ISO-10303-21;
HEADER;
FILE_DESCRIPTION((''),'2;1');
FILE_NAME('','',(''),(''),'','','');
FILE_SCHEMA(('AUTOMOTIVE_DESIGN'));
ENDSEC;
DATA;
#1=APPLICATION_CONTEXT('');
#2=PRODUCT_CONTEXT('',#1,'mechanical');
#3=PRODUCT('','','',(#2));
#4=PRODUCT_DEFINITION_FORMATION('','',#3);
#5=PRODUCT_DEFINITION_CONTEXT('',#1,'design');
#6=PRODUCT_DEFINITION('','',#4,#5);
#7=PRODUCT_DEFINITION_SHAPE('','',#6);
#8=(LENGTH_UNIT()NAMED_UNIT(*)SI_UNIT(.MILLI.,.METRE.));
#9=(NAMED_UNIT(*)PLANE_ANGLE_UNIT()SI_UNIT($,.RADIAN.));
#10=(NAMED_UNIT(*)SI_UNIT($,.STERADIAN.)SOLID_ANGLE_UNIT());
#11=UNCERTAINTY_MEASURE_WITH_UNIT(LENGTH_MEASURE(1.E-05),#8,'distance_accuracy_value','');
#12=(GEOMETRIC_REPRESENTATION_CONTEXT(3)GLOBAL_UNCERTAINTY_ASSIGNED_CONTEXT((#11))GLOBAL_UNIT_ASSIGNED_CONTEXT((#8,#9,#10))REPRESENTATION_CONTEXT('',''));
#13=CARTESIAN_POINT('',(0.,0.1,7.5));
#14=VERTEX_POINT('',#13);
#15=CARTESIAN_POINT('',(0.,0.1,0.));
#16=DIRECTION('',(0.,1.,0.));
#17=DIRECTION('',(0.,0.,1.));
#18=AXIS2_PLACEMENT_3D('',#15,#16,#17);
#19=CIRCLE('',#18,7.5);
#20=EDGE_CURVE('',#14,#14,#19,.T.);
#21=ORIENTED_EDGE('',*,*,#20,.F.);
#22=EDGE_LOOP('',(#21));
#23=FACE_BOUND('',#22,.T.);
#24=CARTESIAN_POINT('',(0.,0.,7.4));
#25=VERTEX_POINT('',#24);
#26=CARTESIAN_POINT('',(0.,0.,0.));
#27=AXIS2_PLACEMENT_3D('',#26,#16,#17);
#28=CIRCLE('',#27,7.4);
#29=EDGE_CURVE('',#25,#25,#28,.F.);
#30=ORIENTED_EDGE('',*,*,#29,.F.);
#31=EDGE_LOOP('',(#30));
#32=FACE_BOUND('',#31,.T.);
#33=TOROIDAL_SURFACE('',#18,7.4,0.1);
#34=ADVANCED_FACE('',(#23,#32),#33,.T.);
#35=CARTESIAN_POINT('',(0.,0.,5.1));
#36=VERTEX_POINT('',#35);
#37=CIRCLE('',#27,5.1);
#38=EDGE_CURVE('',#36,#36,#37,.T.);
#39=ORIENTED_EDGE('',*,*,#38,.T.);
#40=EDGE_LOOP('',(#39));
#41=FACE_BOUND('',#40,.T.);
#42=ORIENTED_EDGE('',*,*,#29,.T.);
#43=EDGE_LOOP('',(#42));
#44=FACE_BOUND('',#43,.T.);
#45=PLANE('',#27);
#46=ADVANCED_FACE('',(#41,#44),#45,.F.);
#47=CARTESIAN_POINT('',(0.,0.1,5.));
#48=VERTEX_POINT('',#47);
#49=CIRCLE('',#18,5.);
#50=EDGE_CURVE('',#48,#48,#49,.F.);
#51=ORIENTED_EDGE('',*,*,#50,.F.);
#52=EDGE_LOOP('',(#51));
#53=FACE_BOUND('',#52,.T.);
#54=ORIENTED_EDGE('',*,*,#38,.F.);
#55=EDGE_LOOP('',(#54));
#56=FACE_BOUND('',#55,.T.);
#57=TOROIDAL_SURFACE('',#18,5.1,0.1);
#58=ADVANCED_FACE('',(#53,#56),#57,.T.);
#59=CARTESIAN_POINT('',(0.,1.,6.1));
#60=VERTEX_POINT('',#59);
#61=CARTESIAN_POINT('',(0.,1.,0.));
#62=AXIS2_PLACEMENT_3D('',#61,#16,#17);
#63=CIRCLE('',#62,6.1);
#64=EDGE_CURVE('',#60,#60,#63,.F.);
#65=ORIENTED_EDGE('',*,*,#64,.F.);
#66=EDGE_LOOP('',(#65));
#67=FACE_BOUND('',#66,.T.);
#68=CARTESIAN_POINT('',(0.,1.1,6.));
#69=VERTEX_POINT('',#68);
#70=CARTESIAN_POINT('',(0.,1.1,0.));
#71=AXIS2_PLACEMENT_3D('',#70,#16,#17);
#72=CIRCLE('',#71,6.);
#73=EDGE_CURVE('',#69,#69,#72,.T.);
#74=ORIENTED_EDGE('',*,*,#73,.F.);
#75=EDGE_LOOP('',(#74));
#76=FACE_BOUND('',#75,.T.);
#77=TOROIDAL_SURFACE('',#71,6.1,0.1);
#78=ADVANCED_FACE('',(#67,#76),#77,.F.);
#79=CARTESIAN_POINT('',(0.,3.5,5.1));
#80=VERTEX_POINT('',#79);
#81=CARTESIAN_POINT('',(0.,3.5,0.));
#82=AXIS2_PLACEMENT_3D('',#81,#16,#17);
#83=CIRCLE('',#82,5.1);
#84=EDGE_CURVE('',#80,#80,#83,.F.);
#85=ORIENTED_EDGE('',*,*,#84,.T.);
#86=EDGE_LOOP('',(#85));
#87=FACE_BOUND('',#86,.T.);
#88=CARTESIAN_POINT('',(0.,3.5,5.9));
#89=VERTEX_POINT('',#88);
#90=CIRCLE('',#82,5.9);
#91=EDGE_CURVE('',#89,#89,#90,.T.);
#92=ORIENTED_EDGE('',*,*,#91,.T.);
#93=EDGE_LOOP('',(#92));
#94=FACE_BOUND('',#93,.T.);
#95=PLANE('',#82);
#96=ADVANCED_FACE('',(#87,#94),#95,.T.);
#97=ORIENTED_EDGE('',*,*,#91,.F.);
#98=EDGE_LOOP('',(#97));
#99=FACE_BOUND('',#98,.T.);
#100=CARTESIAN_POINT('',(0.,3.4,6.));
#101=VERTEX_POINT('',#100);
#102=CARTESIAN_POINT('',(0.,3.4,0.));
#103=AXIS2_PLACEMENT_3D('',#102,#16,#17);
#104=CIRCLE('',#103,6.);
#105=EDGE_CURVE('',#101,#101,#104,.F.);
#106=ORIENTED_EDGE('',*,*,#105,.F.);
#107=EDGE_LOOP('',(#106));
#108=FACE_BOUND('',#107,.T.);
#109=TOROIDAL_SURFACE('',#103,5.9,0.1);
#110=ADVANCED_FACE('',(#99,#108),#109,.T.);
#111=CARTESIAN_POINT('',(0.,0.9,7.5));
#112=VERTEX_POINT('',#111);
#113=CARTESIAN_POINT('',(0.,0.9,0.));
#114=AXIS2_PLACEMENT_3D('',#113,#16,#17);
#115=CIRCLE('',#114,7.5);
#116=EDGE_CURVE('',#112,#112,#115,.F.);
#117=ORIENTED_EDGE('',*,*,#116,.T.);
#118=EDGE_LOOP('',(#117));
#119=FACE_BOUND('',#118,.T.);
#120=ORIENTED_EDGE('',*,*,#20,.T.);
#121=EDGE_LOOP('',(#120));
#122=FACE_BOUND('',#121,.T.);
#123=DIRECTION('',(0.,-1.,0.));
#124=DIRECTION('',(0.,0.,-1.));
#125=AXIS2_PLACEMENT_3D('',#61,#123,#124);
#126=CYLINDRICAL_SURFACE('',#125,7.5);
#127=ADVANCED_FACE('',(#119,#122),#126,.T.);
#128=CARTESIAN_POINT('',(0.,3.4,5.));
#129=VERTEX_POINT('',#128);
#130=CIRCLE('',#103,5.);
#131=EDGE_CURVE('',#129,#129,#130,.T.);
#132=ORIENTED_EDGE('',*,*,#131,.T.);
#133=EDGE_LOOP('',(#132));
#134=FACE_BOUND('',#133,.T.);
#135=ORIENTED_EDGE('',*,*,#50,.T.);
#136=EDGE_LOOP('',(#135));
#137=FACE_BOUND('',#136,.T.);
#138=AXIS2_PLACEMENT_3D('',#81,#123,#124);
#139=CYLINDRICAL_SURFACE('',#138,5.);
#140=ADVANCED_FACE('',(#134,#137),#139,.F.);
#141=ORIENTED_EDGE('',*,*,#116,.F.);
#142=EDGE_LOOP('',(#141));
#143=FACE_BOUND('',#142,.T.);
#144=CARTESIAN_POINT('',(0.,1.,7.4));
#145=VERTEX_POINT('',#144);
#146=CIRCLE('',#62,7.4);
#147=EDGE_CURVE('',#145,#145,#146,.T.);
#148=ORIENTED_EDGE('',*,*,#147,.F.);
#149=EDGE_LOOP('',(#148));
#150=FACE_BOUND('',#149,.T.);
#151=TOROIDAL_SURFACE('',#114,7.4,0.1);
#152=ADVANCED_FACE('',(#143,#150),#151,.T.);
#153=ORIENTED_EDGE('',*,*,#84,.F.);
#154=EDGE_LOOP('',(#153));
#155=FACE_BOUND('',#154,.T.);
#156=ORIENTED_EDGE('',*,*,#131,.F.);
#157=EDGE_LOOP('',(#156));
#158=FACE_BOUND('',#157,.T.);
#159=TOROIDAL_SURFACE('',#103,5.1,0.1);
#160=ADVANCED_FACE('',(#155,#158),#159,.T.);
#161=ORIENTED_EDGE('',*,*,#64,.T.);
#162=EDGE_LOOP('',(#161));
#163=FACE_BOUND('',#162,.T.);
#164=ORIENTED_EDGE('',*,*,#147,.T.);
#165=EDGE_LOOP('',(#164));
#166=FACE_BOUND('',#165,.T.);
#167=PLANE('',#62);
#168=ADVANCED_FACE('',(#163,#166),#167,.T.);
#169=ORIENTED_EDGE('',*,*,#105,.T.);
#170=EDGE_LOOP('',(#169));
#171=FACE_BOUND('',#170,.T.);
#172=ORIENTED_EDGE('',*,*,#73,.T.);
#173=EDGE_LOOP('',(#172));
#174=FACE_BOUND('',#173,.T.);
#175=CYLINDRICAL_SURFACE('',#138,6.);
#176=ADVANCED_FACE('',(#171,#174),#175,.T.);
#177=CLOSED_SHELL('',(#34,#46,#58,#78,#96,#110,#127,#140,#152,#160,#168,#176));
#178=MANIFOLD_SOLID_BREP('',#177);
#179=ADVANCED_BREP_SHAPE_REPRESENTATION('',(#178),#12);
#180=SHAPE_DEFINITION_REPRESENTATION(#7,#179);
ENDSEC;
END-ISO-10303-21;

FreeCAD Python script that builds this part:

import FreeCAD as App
import Part
import Sketcher
from FreeCAD import Vector


def edges_at(feature, points):
    """Names of the edges that pass closest to the given points."""
    edges = feature.Shape.Edges
    near = lambda p: min(range(len(edges)), key=lambda i: edges[i].distToShape(Part.Vertex(*p))[0])
    return sorted({f"Edge{near(p) + 1}" for p in points})

doc = App.newDocument("Part")
body = doc.addObject("PartDesign::Body", "Body")

sketch1 = body.newObject("Sketcher::SketchObject", "Sketch")
sketch1.AttachmentSupport = (doc.getObject("XZ_Plane"), [""])
sketch1.MapMode = "FlatFace"
sketch1.addGeometry(Part.Circle(Vector(0, 0, 0), Vector(0, 0, 1), 6), False)
sketch1.addGeometry(Part.Circle(Vector(0, 0, 0), Vector(0, 0, 1), 5), False)
sketch1.addConstraint(Sketcher.Constraint("Coincident", 0, 3, -1, 1))
sketch1.addConstraint(Sketcher.Constraint("Coincident", 1, 3, -1, 1))
sketch1.addConstraint(Sketcher.Constraint("Diameter", 0, 12.0))
sketch1.addConstraint(Sketcher.Constraint("Diameter", 1, 10.0))
pad1 = body.newObject("PartDesign::Pad", "Pad")
pad1.Profile = sketch1
pad1.Length = 3.5
pad1.Reversed = True

sketch2 = body.newObject("Sketcher::SketchObject", "Sketch001")
sketch2.AttachmentSupport = (doc.getObject("XZ_Plane"), [""])
sketch2.MapMode = "FlatFace"
sketch2.addGeometry(Part.Circle(Vector(0, 0, 0), Vector(0, 0, 1), 7.5), False)
sketch2.addGeometry(Part.Circle(Vector(0, 0, 0), Vector(0, 0, 1), 6), False)
sketch2.addConstraint(Sketcher.Constraint("Coincident", 0, 3, -1, 1))
sketch2.addConstraint(Sketcher.Constraint("Coincident", 1, 3, -1, 1))
sketch2.addConstraint(Sketcher.Constraint("Diameter", 0, 15.0))
sketch2.addConstraint(Sketcher.Constraint("Diameter", 1, 12.0))
pad2 = body.newObject("PartDesign::Pad", "Pad001")
pad2.Profile = sketch2
pad2.Length = 1
pad2.Reversed = True
doc.recompute()

fillet = body.newObject("PartDesign::Fillet", "Fillet")
fillet.Base = (pad2, edges_at(pad2, [
    (-7.5, 0, 0),
    (-6, 1, 0),
    (-6, 3.5, 0),
    (-5, 0, 0),
    (-5, 3.5, 0),
    (-7.5, 1, 0),
]))
fillet.Radius = 0.1

doc.recompute()
